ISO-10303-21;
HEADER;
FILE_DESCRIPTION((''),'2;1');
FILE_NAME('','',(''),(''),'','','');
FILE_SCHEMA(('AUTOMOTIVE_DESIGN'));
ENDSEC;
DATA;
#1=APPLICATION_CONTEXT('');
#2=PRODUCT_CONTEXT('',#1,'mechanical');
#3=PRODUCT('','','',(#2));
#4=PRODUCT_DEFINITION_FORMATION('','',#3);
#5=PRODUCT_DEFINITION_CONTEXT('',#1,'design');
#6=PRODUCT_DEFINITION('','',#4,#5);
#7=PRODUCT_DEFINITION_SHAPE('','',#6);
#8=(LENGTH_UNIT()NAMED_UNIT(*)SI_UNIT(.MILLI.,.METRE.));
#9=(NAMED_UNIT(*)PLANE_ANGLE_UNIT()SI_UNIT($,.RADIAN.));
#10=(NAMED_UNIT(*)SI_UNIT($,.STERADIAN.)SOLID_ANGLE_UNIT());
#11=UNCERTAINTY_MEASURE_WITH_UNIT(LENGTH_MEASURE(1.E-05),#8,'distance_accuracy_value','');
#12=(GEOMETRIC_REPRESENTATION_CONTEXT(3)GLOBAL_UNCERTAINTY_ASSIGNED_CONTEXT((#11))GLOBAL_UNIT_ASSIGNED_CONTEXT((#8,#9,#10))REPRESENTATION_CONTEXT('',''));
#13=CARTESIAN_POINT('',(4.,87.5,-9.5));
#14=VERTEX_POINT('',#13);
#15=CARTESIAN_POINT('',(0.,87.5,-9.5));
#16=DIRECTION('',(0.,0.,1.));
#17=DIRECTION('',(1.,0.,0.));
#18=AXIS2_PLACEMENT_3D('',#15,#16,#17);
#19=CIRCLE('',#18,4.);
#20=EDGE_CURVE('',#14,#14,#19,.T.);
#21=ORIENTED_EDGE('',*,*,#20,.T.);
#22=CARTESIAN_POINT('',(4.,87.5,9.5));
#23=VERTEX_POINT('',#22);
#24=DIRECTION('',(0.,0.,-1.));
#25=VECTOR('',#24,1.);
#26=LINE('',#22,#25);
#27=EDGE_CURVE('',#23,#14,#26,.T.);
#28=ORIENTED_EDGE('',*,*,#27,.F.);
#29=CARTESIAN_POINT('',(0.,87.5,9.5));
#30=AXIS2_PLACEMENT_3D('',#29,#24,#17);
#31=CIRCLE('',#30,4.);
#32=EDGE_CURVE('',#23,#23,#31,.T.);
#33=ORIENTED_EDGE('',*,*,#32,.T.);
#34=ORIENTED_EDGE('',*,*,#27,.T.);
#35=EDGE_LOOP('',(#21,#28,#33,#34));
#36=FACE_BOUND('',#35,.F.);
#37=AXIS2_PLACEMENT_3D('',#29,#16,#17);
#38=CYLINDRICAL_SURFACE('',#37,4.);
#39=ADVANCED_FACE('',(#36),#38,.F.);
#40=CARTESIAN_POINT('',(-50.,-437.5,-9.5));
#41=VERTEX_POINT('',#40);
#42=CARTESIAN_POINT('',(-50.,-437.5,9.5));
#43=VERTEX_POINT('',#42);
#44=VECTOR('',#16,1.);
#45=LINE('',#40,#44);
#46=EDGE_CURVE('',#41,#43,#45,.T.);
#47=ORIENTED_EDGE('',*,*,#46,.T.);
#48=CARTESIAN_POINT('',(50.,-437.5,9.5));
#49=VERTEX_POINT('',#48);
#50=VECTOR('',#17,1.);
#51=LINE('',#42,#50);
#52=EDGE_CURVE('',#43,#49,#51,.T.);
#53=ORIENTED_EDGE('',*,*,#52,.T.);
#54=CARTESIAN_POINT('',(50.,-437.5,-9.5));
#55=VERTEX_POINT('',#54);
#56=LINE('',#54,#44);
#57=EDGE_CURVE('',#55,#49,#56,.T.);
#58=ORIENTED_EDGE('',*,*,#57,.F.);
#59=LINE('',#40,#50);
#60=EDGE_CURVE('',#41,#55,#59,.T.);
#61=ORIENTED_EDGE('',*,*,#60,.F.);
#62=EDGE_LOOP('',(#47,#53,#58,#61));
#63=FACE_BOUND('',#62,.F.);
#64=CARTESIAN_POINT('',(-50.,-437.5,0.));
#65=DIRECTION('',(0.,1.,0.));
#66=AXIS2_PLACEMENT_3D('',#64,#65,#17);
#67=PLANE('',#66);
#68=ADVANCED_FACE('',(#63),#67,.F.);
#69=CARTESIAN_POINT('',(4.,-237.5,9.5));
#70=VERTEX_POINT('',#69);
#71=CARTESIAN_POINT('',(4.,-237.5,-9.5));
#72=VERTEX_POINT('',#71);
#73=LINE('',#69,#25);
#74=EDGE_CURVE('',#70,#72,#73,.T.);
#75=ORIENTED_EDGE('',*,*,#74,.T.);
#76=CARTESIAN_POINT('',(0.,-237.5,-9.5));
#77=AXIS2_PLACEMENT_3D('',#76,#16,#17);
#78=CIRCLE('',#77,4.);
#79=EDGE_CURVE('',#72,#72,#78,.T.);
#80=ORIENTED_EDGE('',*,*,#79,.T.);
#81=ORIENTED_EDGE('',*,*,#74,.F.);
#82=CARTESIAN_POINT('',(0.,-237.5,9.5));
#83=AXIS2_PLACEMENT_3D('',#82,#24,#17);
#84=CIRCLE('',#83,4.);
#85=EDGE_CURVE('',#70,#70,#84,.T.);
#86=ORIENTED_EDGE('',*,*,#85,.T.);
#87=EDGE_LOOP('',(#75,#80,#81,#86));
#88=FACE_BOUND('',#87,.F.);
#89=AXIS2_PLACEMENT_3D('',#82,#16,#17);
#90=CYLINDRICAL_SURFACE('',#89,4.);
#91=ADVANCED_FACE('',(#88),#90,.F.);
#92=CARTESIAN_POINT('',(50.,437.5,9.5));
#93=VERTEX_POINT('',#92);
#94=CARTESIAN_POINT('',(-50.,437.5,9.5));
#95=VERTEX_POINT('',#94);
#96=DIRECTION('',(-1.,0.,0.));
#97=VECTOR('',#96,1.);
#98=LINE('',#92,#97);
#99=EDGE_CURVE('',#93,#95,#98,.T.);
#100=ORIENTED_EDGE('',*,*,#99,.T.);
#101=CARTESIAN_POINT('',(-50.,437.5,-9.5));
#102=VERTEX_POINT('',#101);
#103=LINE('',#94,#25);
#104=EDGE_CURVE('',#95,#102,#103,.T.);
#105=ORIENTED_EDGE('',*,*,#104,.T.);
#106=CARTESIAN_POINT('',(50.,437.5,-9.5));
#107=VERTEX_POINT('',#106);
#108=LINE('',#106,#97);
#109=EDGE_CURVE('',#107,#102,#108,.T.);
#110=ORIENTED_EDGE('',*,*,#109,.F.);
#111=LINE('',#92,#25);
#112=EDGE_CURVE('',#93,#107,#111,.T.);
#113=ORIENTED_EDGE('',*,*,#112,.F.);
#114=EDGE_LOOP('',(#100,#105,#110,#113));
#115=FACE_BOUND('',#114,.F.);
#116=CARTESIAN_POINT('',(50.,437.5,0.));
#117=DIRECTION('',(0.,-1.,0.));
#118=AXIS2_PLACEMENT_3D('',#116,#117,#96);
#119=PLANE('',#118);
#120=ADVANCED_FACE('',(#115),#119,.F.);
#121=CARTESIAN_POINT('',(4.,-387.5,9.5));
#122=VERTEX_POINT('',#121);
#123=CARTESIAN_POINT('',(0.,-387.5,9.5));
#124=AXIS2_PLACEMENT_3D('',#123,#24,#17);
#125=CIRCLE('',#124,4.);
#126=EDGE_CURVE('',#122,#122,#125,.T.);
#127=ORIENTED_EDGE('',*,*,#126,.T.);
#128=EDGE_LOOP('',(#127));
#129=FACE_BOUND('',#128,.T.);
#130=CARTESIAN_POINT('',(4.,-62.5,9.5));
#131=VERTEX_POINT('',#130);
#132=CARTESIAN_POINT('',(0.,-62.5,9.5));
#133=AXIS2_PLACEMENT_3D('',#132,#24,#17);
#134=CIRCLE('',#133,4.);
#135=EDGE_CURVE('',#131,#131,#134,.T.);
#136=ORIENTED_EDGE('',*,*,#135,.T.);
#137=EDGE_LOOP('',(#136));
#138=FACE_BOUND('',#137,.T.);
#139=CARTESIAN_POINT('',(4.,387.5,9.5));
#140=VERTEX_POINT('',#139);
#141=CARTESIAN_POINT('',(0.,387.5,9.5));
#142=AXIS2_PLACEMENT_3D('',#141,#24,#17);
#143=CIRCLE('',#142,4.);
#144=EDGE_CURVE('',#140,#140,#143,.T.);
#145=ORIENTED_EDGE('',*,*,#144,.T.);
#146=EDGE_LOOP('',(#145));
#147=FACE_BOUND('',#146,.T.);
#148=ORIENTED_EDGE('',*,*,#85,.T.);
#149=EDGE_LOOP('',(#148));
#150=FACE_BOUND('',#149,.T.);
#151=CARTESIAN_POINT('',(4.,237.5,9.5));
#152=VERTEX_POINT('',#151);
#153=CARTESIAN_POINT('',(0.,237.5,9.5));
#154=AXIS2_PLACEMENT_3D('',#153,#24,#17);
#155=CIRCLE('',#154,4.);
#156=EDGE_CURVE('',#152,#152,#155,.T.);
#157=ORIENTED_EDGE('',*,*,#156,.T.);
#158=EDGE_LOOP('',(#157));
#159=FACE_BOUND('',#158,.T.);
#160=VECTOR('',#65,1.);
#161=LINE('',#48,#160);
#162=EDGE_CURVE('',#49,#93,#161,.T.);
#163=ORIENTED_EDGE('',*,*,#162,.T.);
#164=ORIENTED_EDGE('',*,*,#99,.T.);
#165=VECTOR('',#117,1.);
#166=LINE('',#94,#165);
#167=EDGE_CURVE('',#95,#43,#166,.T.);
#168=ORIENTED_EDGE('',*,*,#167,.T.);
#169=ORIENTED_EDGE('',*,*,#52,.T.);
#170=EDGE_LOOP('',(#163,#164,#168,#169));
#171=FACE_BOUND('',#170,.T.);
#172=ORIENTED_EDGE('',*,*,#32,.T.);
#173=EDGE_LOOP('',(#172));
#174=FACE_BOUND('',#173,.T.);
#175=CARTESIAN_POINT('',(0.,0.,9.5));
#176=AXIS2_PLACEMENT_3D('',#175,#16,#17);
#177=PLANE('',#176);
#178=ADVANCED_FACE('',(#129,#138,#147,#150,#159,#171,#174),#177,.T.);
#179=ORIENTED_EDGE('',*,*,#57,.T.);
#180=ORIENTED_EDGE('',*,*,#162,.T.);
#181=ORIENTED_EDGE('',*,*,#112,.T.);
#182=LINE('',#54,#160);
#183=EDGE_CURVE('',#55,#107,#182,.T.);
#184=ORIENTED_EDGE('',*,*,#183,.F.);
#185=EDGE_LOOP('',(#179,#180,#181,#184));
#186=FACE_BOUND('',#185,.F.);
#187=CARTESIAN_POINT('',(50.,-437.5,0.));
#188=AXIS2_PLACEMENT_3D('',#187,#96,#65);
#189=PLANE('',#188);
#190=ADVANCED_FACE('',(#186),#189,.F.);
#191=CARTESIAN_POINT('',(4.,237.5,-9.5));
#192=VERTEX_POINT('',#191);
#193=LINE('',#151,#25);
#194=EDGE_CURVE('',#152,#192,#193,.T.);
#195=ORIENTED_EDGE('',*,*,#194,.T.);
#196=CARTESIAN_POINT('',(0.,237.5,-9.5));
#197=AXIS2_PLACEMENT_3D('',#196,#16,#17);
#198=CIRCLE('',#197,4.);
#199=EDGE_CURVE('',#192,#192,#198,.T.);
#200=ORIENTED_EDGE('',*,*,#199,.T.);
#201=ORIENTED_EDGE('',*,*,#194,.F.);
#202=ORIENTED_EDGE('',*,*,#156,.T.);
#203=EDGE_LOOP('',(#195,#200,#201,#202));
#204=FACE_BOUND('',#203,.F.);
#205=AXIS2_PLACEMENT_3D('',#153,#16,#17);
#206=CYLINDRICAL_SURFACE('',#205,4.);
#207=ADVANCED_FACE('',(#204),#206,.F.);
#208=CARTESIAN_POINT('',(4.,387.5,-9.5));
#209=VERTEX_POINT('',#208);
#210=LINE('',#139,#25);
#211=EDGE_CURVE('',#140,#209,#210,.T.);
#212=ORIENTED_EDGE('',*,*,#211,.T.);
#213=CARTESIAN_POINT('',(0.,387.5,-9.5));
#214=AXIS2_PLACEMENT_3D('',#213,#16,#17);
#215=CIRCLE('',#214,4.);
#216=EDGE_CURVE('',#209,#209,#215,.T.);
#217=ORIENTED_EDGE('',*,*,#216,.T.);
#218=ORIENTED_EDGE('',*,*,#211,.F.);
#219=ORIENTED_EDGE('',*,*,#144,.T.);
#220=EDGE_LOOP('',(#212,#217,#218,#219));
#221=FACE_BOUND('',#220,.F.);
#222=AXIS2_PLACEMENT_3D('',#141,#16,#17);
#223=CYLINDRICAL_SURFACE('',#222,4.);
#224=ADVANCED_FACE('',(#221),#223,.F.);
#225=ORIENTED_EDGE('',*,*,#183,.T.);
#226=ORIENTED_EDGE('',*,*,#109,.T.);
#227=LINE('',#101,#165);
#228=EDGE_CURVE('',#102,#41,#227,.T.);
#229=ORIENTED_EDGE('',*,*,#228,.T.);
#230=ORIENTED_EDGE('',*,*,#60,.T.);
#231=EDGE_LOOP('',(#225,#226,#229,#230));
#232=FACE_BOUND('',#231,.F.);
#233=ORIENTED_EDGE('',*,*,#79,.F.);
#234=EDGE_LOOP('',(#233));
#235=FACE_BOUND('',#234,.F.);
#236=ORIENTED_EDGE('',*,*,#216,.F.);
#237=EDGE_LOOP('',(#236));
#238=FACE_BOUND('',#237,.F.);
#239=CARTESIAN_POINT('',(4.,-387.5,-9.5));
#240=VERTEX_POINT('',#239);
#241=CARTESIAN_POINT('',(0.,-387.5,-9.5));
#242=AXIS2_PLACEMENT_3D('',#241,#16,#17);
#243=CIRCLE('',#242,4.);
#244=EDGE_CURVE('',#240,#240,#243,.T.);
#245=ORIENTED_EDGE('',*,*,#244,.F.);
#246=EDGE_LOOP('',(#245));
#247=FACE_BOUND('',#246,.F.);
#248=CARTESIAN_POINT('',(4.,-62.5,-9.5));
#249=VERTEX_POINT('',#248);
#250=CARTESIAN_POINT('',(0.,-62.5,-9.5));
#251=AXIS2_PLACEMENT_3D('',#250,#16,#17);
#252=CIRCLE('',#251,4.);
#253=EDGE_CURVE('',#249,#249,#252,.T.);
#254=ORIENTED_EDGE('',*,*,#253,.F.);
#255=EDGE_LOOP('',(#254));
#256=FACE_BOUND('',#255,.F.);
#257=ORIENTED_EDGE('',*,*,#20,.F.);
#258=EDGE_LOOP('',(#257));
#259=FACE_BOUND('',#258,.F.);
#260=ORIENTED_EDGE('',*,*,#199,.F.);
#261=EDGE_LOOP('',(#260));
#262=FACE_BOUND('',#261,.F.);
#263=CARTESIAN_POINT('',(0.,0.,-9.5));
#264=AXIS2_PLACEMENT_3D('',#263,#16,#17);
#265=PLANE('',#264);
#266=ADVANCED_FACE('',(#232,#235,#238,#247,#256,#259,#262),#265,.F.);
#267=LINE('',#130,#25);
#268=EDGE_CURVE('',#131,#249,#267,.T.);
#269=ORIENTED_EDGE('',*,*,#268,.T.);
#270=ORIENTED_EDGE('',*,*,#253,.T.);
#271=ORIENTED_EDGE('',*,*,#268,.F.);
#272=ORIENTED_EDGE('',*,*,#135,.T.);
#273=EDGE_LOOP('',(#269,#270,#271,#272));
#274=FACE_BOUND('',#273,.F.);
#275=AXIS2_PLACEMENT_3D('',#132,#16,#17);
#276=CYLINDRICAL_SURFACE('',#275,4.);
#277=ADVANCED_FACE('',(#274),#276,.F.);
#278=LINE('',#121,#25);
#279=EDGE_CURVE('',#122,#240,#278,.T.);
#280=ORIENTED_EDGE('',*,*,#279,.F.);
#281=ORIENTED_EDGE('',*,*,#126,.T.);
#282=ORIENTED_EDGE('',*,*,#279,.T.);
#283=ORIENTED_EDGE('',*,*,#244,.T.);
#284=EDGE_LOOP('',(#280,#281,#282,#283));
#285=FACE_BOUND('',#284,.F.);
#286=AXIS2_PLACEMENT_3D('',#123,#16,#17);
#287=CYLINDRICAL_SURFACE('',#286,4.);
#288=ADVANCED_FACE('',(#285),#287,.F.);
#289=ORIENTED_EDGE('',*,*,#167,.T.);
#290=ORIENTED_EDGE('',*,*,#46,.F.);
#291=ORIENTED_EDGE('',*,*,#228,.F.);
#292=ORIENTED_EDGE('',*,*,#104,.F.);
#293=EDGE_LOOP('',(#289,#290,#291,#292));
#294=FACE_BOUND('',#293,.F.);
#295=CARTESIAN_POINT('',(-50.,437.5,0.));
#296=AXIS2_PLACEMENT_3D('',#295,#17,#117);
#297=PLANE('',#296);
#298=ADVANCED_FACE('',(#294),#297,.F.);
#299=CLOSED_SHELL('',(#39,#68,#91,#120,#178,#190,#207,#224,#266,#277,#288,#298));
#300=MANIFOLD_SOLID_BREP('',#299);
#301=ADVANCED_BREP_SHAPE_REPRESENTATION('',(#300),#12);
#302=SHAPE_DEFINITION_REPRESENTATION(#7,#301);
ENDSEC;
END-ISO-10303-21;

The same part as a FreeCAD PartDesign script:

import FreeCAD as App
import Part
import Sketcher

V = App.Vector
Q = App.Units.Quantity


def add_polygon(sketch, points):
    """Adds a closed chain of lines whose ends are joined by coincident constraints."""
    first, n = sketch.GeometryCount, len(points)
    for a, b in zip(points, points[1:] + points[:1]):
        sketch.addGeometry(Part.LineSegment(App.Vector(*a, 0), App.Vector(*b, 0)), False)
    for i in range(n):
        sketch.addConstraint(Sketcher.Constraint("Coincident", first + i, 2, first + (i + 1) % n, 1))

doc = App.newDocument("Part")
body = doc.addObject("PartDesign::Body", "Body")

# Sketch on XY plane
sketch1 = body.newObject("Sketcher::SketchObject", "Sketch")
sketch1.AttachmentSupport = (doc.getObject("XY_Plane"), [""])
sketch1.MapMode = "FlatFace"
add_polygon(sketch1, [(-50, 437.5), (-50, -437.5), (50, -437.5), (50, 437.5)])  # lines 0-3
sketch1.addConstraint(Sketcher.Constraint("Vertical", 0))
sketch1.addConstraint(Sketcher.Constraint("Horizontal", 1))
sketch1.addConstraint(Sketcher.Constraint("Vertical", 2))
sketch1.addConstraint(Sketcher.Constraint("Horizontal", 3))
sketch1.addConstraint(Sketcher.Constraint("Symmetric", 0, 2, 2, 2, -1, 1))
sketch1.addConstraint(Sketcher.Constraint("DistanceX", 1, 1, 1, 2, Q("100 mm")))
sketch1.addConstraint(Sketcher.Constraint("DistanceY", 0, 2, 0, 1, Q("875 mm")))
pad1 = body.newObject("PartDesign::Pad", "Pad")
pad1.Profile = sketch1
pad1.Length = 19
pad1.Midplane = True

# Sketch on XY plane
sketch2 = body.newObject("Sketcher::SketchObject", "Sketch001")
sketch2.AttachmentSupport = (doc.getObject("XY_Plane"), [""])
sketch2.MapMode = "FlatFace"
sketch2.AttachmentOffset = App.Placement(V(0, 0, 9.5), App.Rotation())
sketch2.addGeometry(Part.Circle(V(0, 387.5, 0), V(0, 0, 1), 4), False)
sketch2.addGeometry(Part.Circle(V(0, -387.5, 0), V(0, 0, 1), 4), False)
sketch2.addGeometry(Part.Circle(V(0, -237.5, 0), V(0, 0, 1), 4), False)
sketch2.addGeometry(Part.Circle(V(0, -62.5, 0), V(0, 0, 1), 4), False)
sketch2.addGeometry(Part.Circle(V(0, 87.5, 0), V(0, 0, 1), 4), False)
sketch2.addGeometry(Part.Circle(V(0, 237.5, 0), V(0, 0, 1), 4), False)
sketch2.addConstraint(Sketcher.Constraint("Equal", 0, 1))
sketch2.addConstraint(Sketcher.Constraint("Equal", 1, 2))
sketch2.addConstraint(Sketcher.Constraint("Equal", 2, 3))
sketch2.addConstraint(Sketcher.Constraint("Equal", 3, 4))
sketch2.addConstraint(Sketcher.Constraint("Equal", 4, 5))
sketch2.addConstraint(Sketcher.Constraint("Symmetric", 0, 3, 1, 3, -1, 1))
sketch2.addConstraint(Sketcher.Constraint("Symmetric", 2, 3, 5, 3, -1, 1))
sketch2.addConstraint(Sketcher.Constraint("PointOnObject", 0, 3, -2))
sketch2.addConstraint(Sketcher.Constraint("PointOnObject", 2, 3, -2))
sketch2.addConstraint(Sketcher.Constraint("PointOnObject", 3, 3, -2))
sketch2.addConstraint(Sketcher.Constraint("PointOnObject", 4, 3, -2))
sketch2.addConstraint(Sketcher.Constraint("Diameter", 0, Q("8 mm")))
sketch2.addConstraint(Sketcher.Constraint("DistanceY", 1, 3, 2, 3, Q("150 mm")))
sketch2.addConstraint(Sketcher.Constraint("DistanceY", 2, 3, 3, 3, Q("175 mm")))
sketch2.addConstraint(Sketcher.Constraint("DistanceY", 3, 3, 4, 3, Q("150 mm")))
sketch2.addConstraint(Sketcher.Constraint("DistanceY", 4, 3, 5, 3, Q("150 mm")))
pocket1 = body.newObject("PartDesign::Pocket", "Pocket")
pocket1.Profile = sketch2
pocket1.Type = "ThroughAll"

doc.recompute()
